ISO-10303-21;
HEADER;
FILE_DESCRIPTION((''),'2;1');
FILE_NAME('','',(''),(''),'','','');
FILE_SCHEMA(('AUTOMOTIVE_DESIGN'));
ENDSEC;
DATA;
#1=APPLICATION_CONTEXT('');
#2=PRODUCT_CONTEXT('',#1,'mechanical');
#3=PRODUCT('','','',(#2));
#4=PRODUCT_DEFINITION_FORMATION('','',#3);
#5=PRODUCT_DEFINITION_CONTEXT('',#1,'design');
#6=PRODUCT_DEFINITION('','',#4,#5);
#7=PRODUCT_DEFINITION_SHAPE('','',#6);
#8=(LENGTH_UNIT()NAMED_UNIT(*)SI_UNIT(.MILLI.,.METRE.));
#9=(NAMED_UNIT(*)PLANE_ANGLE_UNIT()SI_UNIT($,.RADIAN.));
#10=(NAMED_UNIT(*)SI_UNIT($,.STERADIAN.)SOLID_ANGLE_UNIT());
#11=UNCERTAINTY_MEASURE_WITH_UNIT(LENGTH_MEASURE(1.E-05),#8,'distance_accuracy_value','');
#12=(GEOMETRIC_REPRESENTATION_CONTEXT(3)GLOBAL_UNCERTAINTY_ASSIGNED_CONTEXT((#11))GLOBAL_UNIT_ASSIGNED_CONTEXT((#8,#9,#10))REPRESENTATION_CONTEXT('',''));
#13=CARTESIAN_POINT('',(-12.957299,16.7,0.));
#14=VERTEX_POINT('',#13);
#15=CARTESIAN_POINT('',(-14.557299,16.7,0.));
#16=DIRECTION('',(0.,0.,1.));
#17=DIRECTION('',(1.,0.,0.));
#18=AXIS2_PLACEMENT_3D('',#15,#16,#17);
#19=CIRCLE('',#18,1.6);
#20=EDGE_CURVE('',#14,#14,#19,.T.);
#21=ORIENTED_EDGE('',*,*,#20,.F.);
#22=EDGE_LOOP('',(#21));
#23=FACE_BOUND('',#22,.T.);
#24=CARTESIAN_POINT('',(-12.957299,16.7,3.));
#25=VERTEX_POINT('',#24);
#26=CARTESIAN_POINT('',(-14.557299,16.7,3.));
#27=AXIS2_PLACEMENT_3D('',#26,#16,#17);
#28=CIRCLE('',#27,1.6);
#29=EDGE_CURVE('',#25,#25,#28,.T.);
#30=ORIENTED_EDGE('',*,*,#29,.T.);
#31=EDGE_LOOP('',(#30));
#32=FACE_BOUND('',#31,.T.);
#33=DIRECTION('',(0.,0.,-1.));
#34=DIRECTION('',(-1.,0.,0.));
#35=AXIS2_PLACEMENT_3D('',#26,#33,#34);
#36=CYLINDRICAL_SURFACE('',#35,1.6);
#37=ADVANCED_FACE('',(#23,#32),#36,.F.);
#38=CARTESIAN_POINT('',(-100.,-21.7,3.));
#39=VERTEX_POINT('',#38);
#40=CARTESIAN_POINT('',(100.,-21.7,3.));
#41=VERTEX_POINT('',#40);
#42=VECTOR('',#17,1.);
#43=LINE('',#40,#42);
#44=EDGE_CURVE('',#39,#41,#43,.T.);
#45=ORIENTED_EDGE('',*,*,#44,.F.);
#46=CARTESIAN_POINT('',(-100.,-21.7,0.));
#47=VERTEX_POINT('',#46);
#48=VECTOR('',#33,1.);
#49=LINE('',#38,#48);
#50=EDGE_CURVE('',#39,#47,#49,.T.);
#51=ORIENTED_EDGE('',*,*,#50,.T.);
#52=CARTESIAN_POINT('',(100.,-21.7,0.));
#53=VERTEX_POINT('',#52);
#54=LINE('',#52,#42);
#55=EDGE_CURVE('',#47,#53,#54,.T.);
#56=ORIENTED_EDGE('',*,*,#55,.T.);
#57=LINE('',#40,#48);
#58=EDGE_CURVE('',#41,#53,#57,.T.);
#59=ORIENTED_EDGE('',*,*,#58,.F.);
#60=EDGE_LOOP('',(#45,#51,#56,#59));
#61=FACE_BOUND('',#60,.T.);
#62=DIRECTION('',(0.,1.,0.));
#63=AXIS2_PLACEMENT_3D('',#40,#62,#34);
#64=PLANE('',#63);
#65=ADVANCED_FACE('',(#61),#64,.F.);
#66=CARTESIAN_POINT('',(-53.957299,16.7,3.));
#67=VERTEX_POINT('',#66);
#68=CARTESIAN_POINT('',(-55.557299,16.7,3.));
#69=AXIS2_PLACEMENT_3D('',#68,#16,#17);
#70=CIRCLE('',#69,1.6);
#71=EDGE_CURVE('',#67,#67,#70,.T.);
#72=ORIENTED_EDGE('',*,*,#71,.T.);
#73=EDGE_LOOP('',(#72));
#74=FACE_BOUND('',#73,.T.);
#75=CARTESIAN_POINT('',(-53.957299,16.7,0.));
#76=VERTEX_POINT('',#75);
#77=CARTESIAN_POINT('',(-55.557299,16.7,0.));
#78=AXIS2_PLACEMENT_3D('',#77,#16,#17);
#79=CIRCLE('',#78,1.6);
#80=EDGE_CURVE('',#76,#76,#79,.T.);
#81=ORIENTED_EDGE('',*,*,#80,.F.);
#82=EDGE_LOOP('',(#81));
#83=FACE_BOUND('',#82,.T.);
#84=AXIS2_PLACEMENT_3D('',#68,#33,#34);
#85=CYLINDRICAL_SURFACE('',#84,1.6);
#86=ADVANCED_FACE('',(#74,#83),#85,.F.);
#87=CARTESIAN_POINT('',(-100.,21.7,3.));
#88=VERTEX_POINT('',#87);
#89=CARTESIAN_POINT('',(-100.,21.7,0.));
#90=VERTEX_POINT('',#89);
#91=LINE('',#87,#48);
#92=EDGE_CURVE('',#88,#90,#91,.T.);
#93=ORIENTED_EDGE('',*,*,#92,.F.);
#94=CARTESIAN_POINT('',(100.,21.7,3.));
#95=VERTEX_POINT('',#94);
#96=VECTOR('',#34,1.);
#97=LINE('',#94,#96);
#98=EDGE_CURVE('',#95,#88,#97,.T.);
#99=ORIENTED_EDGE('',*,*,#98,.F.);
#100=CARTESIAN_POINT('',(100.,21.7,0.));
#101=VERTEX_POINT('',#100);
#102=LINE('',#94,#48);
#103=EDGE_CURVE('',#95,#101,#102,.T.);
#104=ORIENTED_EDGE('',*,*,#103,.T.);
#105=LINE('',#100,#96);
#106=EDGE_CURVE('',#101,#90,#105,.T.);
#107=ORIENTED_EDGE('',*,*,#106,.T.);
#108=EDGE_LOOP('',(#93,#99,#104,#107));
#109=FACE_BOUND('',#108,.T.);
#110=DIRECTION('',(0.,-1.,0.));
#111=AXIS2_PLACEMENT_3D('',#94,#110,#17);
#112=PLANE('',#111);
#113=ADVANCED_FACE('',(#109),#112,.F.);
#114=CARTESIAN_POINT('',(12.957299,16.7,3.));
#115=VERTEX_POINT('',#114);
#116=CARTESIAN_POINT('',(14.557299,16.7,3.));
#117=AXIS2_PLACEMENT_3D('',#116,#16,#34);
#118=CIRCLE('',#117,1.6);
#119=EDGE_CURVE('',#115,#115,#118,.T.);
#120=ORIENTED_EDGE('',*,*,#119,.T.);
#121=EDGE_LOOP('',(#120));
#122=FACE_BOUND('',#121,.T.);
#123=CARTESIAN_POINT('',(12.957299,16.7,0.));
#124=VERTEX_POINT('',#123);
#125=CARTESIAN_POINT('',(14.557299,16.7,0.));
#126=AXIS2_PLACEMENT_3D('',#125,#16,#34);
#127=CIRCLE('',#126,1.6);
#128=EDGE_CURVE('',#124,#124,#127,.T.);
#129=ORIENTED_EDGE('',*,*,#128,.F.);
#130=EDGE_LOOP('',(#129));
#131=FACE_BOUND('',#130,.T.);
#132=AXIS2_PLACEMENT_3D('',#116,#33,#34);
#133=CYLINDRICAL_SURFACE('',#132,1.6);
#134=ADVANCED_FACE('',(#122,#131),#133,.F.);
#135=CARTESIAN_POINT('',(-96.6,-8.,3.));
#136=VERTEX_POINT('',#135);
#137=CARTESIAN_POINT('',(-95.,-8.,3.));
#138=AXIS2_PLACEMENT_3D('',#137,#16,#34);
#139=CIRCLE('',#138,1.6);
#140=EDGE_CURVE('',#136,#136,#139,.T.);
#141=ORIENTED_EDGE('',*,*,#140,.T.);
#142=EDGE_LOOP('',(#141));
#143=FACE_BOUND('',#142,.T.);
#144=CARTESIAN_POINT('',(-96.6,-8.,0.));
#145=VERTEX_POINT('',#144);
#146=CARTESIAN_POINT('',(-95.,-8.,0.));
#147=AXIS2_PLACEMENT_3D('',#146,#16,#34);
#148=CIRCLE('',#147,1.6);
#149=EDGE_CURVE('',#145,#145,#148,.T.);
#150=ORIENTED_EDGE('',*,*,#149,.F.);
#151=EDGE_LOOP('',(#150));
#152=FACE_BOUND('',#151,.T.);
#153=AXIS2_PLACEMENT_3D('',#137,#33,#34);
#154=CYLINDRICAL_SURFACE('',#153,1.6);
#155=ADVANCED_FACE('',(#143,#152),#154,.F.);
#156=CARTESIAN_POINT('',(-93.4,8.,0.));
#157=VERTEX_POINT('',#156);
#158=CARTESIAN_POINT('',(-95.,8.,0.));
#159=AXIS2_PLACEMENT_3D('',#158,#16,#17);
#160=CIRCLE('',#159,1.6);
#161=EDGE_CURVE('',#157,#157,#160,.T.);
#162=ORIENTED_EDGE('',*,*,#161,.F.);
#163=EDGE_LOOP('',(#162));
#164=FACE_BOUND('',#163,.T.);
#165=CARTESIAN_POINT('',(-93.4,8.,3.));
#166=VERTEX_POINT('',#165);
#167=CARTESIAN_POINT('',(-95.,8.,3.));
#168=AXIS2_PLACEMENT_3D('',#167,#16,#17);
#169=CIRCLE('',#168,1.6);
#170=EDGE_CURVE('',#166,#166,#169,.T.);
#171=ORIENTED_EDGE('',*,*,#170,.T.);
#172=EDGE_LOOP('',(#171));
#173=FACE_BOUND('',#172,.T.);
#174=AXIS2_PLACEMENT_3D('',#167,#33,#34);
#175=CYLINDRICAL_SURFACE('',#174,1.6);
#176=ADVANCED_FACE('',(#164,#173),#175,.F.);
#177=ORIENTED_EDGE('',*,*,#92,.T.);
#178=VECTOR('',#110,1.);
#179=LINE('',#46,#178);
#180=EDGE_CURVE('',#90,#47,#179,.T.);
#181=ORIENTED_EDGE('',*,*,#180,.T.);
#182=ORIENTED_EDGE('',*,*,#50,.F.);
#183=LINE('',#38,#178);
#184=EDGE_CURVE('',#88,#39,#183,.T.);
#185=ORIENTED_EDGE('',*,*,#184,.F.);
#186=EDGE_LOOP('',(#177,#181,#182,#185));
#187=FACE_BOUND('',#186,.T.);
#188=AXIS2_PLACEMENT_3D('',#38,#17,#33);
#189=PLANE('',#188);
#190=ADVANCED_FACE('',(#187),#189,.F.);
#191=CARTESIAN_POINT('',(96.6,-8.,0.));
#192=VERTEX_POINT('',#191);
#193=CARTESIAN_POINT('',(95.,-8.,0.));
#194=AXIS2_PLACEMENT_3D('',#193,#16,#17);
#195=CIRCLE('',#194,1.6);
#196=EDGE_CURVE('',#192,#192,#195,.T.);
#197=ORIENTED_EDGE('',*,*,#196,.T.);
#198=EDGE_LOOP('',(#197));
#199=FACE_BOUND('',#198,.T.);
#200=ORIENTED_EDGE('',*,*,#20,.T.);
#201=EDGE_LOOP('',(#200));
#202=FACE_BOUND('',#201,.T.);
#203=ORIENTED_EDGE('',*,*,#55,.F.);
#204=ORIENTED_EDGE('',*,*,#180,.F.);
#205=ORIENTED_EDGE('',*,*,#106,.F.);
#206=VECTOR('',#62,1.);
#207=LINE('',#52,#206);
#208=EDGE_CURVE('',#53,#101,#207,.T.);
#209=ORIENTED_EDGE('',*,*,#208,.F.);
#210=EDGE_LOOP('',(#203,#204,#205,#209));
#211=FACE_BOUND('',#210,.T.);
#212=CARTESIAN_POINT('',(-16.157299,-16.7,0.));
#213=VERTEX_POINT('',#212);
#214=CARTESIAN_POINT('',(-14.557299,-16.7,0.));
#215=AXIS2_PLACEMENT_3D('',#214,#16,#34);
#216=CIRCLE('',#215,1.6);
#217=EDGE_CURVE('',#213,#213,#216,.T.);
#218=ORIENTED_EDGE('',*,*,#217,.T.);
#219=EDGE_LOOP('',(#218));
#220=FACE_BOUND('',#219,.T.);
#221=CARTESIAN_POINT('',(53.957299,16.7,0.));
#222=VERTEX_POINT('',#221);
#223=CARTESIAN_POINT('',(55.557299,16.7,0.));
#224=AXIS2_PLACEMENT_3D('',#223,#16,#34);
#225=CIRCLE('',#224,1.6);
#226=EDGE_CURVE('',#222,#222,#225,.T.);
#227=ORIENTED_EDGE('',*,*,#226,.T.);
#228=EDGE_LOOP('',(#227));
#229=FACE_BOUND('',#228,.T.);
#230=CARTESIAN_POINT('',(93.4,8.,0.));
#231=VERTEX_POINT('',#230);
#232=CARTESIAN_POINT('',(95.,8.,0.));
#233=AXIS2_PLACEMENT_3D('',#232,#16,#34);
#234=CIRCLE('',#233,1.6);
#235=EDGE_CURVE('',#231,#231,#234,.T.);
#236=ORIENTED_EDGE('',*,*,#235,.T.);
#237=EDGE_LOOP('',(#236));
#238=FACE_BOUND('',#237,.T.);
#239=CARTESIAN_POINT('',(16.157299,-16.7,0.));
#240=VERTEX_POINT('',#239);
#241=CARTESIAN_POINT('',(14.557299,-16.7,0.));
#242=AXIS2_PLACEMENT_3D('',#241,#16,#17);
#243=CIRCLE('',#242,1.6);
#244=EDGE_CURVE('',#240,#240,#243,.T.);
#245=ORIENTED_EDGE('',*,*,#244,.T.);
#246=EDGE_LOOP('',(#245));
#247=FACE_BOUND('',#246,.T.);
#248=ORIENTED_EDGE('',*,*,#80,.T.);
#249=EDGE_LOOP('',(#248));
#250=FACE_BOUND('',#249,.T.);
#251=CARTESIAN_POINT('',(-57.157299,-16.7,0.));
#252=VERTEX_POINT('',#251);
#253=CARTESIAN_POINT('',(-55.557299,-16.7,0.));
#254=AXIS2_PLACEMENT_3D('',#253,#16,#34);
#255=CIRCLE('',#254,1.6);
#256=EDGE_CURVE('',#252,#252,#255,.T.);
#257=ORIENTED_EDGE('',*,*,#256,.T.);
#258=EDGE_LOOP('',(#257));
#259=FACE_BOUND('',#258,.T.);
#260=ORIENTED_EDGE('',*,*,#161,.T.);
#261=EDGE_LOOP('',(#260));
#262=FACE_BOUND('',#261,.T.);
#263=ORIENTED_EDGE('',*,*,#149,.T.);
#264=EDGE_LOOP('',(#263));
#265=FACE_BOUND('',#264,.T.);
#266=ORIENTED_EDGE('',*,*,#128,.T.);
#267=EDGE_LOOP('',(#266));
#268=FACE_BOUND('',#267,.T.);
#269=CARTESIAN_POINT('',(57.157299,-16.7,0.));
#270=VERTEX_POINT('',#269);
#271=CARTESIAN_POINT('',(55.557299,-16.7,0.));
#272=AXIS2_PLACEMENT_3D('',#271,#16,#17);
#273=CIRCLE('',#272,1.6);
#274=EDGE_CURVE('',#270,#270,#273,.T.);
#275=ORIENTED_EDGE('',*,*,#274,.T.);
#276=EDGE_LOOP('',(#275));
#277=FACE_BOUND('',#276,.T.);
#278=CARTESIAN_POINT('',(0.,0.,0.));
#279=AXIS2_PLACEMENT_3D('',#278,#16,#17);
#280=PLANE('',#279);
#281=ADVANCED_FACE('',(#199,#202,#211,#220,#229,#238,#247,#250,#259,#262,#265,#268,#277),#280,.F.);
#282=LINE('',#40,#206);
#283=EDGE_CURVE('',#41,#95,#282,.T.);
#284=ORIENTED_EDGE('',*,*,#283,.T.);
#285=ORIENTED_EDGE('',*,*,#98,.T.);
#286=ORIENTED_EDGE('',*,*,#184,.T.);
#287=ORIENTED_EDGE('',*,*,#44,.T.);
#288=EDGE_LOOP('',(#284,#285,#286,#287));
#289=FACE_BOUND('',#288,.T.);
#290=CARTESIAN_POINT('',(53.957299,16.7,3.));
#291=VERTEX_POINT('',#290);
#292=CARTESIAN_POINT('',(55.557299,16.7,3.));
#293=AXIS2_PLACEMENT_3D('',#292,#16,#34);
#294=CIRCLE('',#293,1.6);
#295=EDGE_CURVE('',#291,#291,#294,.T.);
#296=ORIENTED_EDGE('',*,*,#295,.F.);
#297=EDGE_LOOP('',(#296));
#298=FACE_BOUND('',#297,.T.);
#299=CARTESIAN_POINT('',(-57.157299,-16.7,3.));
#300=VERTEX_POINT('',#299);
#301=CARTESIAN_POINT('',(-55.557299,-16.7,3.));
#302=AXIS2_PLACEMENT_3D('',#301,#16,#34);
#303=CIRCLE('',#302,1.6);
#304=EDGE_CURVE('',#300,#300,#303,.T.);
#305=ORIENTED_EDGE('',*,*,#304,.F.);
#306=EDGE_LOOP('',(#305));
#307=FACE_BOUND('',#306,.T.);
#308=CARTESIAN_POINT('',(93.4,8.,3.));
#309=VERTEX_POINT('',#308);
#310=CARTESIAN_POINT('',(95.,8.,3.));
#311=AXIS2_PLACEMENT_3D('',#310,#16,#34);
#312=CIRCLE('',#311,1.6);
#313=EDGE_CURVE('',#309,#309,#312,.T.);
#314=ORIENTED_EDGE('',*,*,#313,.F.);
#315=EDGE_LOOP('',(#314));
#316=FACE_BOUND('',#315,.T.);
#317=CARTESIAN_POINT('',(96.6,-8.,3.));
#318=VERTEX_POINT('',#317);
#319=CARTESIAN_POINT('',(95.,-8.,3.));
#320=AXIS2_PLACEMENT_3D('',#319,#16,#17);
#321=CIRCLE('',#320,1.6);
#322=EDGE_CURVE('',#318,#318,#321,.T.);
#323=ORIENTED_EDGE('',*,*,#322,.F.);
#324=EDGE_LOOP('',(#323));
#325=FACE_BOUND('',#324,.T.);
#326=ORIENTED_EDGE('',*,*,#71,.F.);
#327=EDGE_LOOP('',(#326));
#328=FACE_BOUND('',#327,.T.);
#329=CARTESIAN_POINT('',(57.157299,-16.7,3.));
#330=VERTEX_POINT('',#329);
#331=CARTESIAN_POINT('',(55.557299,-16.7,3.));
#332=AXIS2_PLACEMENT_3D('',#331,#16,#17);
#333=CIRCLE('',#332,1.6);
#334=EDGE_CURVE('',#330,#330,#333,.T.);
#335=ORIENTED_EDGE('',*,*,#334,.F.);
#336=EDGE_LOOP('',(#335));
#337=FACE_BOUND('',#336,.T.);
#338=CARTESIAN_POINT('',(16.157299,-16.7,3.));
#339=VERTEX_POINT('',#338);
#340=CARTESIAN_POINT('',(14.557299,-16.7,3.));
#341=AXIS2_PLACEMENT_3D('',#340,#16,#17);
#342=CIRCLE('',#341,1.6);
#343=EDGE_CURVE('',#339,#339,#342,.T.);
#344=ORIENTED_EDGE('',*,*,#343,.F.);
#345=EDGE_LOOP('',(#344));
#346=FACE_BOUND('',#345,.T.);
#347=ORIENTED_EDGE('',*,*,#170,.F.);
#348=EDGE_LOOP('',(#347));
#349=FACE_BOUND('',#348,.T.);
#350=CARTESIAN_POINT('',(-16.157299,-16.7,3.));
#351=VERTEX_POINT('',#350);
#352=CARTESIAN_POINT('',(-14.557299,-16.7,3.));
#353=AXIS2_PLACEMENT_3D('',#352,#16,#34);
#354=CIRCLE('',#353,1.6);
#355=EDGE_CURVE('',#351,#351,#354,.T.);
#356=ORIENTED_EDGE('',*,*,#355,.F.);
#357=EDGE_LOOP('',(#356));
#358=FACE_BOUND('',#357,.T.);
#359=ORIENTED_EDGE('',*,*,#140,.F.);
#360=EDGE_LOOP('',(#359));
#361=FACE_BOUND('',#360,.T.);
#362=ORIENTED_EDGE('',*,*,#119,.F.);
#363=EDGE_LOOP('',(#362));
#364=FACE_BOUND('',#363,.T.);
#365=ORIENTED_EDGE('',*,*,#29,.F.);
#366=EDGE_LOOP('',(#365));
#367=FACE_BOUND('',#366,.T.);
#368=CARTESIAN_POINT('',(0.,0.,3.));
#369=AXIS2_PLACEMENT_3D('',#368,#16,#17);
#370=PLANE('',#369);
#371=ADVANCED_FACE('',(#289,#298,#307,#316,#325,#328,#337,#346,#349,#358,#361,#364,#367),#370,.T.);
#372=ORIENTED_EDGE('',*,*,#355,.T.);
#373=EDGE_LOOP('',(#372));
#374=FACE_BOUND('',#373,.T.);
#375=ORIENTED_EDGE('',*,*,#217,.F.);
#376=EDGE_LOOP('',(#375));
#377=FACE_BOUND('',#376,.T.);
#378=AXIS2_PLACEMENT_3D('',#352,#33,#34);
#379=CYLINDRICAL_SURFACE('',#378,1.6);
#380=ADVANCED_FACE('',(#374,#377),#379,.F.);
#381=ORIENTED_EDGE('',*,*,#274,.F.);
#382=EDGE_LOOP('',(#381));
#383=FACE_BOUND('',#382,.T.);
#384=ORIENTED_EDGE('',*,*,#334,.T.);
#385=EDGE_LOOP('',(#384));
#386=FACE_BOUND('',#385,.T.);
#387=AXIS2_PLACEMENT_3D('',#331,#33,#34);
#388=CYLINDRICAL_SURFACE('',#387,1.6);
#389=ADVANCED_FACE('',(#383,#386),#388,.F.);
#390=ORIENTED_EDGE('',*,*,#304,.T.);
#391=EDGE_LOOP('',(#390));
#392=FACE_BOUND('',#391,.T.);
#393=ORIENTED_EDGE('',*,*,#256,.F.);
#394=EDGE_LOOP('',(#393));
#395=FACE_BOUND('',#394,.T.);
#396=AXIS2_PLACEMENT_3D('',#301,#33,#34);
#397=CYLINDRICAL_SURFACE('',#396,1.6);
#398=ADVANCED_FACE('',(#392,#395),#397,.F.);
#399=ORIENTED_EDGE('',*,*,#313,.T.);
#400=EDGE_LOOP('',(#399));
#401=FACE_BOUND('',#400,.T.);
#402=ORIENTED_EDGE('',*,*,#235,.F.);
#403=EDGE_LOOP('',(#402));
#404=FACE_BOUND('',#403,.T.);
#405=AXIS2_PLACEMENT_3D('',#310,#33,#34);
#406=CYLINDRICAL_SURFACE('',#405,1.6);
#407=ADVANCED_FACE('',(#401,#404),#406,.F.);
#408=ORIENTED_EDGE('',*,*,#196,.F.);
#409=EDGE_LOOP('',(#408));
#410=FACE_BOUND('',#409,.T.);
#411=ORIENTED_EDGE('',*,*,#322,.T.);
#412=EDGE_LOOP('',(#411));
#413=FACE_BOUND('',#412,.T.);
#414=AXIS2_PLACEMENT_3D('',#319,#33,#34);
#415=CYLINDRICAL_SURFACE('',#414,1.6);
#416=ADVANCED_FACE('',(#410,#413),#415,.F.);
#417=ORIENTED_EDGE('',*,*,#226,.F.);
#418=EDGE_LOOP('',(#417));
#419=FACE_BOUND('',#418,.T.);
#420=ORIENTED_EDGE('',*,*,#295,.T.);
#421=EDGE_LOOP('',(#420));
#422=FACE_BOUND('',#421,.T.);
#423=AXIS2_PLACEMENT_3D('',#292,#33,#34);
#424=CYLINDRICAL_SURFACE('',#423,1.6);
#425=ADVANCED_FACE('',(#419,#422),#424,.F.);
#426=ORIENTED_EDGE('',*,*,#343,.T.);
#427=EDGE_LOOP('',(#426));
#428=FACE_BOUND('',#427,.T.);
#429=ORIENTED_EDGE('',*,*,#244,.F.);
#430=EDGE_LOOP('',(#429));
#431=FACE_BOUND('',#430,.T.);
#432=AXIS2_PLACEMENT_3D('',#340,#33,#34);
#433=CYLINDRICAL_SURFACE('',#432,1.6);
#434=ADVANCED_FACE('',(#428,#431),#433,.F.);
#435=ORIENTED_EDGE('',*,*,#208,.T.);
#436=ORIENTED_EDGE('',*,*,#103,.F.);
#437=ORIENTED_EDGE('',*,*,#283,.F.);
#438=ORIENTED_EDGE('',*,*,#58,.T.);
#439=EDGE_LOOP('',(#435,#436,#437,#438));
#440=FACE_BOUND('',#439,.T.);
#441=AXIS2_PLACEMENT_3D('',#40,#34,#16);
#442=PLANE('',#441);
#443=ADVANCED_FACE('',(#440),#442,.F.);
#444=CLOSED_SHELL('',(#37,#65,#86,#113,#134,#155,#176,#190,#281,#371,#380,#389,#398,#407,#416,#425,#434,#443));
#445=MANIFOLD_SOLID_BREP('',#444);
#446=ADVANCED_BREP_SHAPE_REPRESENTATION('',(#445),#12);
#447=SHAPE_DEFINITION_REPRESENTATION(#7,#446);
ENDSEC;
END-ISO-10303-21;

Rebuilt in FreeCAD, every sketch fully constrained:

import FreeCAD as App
import Part
import Sketcher
from FreeCAD import Vector
Q = App.Units.Quantity


def add_polygon(sketch, points):
    """Adds a closed chain of lines whose ends are joined by coincident constraints."""
    first, n = sketch.GeometryCount, len(points)
    for a, b in zip(points, points[1:] + points[:1]):
        sketch.addGeometry(Part.LineSegment(App.Vector(*a, 0), App.Vector(*b, 0)), False)
    for i in range(n):
        sketch.addConstraint(Sketcher.Constraint("Coincident", first + i, 2, first + (i + 1) % n, 1))

doc = App.newDocument("Part")
body = doc.addObject("PartDesign::Body", "Body")

# Sketch on XY plane
sketch1 = body.newObject("Sketcher::SketchObject", "Sketch")
sketch1.AttachmentSupport = (doc.getObject("XY_Plane"), [""])
sketch1.MapMode = "FlatFace"
add_polygon(sketch1, [(-100, 21.7), (-100, -21.7), (100, -21.7), (100, 21.7)])  # lines 0-3
sketch1.addGeometry(Part.Circle(Vector(-55.6, -16.7, 0), Vector(0, 0, 1), 1.6), False)  # 4
sketch1.addGeometry(Part.Circle(Vector(-14.6, -16.7, 0), Vector(0, 0, 1), 1.6), False)  # 5
sketch1.addGeometry(Part.Circle(Vector(-95, -8, 0), Vector(0, 0, 1), 1.6), False)  # 6
sketch1.addGeometry(Part.Circle(Vector(14.6, -16.7, 0), Vector(0, 0, 1), 1.6), False)  # 7
sketch1.addGeometry(Part.Circle(Vector(55.6, -16.7, 0), Vector(0, 0, 1), 1.6), False)  # 8
sketch1.addGeometry(Part.Circle(Vector(95, -8, 0), Vector(0, 0, 1), 1.6), False)  # 9
sketch1.addGeometry(Part.Circle(Vector(-95, 8, 0), Vector(0, 0, 1), 1.6), False)  # 10
sketch1.addGeometry(Part.Circle(Vector(-55.6, 16.7, 0), Vector(0, 0, 1), 1.6), False)  # 11
sketch1.addGeometry(Part.Circle(Vector(-14.6, 16.7, 0), Vector(0, 0, 1), 1.6), False)  # 12
sketch1.addGeometry(Part.Circle(Vector(95, 8, 0), Vector(0, 0, 1), 1.6), False)  # 13
sketch1.addGeometry(Part.Circle(Vector(14.6, 16.7, 0), Vector(0, 0, 1), 1.6), False)  # 14
sketch1.addGeometry(Part.Circle(Vector(55.6, 16.7, 0), Vector(0, 0, 1), 1.6), False)  # 15
sketch1.addConstraint([
    Sketcher.Constraint("Vertical", 0),
    Sketcher.Constraint("Horizontal", 1),
    Sketcher.Constraint("Vertical", 2),
    Sketcher.Constraint("Horizontal", 3),
    Sketcher.Constraint("Equal", 4, 5),
    Sketcher.Constraint("Equal", 5, 6),
    Sketcher.Constraint("Equal", 6, 7),
    Sketcher.Constraint("Equal", 7, 8),
    Sketcher.Constraint("Equal", 8, 9),
    Sketcher.Constraint("Equal", 9, 10),
    Sketcher.Constraint("Equal", 10, 11),
    Sketcher.Constraint("Equal", 11, 12),
    Sketcher.Constraint("Equal", 12, 13),
    Sketcher.Constraint("Equal", 13, 14),
    Sketcher.Constraint("Equal", 14, 15),
    Sketcher.Constraint("Symmetric", 9, 3, 10, 3, -1, 1),
    Sketcher.Constraint("Symmetric", 8, 3, 11, 3, -1, 1),
    Sketcher.Constraint("Symmetric", 7, 3, 12, 3, -1, 1),
    Sketcher.Constraint("Symmetric", 6, 3, 13, 3, -1, 1),
    Sketcher.Constraint("Symmetric", 5, 3, 14, 3, -1, 1),
    Sketcher.Constraint("Symmetric", 4, 3, 15, 3, -1, 1),
    Sketcher.Constraint("Symmetric", 0, 2, 2, 2, -1, 1),
    Sketcher.Constraint("Symmetric", 5, 3, 7, 3, -2),
    Sketcher.Constraint("Symmetric", 4, 3, 8, 3, -2),
    Sketcher.Constraint("Symmetric", 6, 3, 9, 3, -2),
    Sketcher.Constraint("Horizontal", 4, 3, 5, 3),
    Sketcher.Constraint("Diameter", 4, Q("3.2 mm")),
    Sketcher.Constraint("DistanceX", 1, 1, 1, 2, Q("200 mm")),
    Sketcher.Constraint("DistanceY", 0, 2, 0, 1, Q("43.4 mm")),
    Sketcher.Constraint("DistanceX", 6, 3, -1, 1, Q("95 mm")),
    Sketcher.Constraint("DistanceY", 6, 3, -1, 1, Q("8 mm")),
    Sketcher.Constraint("DistanceX", 4, 3, 5, 3, Q("41 mm")),
    Sketcher.Constraint("DistanceY", 0, 2, 4, 3, Q("5 mm")),
    Sketcher.Constraint("DistanceX", 4, 3, -1, 1, Q("55.557299 mm")),
])
pad1 = body.newObject("PartDesign::Pad", "Pad")
pad1.Profile = sketch1
pad1.Length = 3

doc.recompute()
